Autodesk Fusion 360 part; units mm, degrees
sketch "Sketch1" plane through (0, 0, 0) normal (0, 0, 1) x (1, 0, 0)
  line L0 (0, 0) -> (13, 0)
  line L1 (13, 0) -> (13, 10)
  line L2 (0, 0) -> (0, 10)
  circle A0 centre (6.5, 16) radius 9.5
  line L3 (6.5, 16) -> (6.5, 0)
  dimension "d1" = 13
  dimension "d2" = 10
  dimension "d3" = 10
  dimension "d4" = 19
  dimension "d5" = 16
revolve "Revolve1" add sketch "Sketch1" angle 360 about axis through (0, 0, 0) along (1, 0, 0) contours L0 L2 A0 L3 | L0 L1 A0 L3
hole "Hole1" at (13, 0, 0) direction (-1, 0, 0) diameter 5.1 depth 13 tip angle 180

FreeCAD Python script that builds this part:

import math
import FreeCAD as App
import Part
import Sketcher

V = App.Vector

doc = App.newDocument("Part")
body = doc.addObject("PartDesign::Body", "Body")

sketch1 = body.newObject("Sketcher::SketchObject", "Sketch")
sketch1.AttachmentSupport = (doc.getObject("XY_Plane"), [""])
sketch1.MapMode = "FlatFace"
sketch1.addGeometry([
    Part.LineSegment(V(0, 9, 0), V(0, 0, 0)),
    Part.LineSegment(V(0, 0, 0), V(13, 0, 0)),
    Part.LineSegment(V(13, 0, 0), V(13, 9, 0)),
    Part.ArcOfCircle(Part.Circle(V(6, 16, 0), V(0, 0, 1), 10), math.radians(-133), math.radians(-47)),
], False)
sketch1.addConstraint([
    Sketcher.Constraint("Coincident", 0, 2, 1, 1),
    Sketcher.Constraint("Coincident", 1, 2, 2, 1),
    Sketcher.Constraint("Coincident", 2, 2, 3, 2),
    Sketcher.Constraint("Coincident", 3, 1, 0, 1),
    Sketcher.Constraint("Vertical", 0),
    Sketcher.Constraint("Horizontal", 1),
    Sketcher.Constraint("Vertical", 2),
    Sketcher.Constraint("Coincident", 0, 2, -1, 1),
    Sketcher.Constraint("Horizontal", 2, 2, 3, 1),
    Sketcher.Constraint("Radius", 3, 9.5),
    Sketcher.Constraint("DistanceX", 1, 1, 1, 2, 13.0),
    Sketcher.Constraint("DistanceY", -1, 1, 3, 3, 16.0),
])
revolution = body.newObject("PartDesign::Revolution", "Revolution")
revolution.Profile = sketch1
revolution.ReferenceAxis = (sketch1, ["H_Axis"])
revolution.Angle = 360

sketch2 = body.newObject("Sketcher::SketchObject", "Sketch001")
sketch2.AttachmentSupport = (doc.getObject("YZ_Plane"), [""])
sketch2.MapMode = "FlatFace"
sketch2.AttachmentOffset = App.Placement(V(0, 0, 13), App.Rotation())
sketch2.addGeometry(Part.Circle(V(0, 0, 0), V(0, 0, 1), 2.5), False)
sketch2.addConstraint([
    Sketcher.Constraint("Coincident", 0, 3, -1, 1),
    Sketcher.Constraint("Diameter", 0, 5.1),
])
doc.recompute()
hole = body.newObject("PartDesign::Hole", "Hole")
hole.Profile = sketch2
hole.ThreadType = "None"
hole.Diameter = 5.1
hole.DepthType = "Dimension"
hole.Depth = 13
hole.DrillPoint = "Flat"

doc.recompute()
